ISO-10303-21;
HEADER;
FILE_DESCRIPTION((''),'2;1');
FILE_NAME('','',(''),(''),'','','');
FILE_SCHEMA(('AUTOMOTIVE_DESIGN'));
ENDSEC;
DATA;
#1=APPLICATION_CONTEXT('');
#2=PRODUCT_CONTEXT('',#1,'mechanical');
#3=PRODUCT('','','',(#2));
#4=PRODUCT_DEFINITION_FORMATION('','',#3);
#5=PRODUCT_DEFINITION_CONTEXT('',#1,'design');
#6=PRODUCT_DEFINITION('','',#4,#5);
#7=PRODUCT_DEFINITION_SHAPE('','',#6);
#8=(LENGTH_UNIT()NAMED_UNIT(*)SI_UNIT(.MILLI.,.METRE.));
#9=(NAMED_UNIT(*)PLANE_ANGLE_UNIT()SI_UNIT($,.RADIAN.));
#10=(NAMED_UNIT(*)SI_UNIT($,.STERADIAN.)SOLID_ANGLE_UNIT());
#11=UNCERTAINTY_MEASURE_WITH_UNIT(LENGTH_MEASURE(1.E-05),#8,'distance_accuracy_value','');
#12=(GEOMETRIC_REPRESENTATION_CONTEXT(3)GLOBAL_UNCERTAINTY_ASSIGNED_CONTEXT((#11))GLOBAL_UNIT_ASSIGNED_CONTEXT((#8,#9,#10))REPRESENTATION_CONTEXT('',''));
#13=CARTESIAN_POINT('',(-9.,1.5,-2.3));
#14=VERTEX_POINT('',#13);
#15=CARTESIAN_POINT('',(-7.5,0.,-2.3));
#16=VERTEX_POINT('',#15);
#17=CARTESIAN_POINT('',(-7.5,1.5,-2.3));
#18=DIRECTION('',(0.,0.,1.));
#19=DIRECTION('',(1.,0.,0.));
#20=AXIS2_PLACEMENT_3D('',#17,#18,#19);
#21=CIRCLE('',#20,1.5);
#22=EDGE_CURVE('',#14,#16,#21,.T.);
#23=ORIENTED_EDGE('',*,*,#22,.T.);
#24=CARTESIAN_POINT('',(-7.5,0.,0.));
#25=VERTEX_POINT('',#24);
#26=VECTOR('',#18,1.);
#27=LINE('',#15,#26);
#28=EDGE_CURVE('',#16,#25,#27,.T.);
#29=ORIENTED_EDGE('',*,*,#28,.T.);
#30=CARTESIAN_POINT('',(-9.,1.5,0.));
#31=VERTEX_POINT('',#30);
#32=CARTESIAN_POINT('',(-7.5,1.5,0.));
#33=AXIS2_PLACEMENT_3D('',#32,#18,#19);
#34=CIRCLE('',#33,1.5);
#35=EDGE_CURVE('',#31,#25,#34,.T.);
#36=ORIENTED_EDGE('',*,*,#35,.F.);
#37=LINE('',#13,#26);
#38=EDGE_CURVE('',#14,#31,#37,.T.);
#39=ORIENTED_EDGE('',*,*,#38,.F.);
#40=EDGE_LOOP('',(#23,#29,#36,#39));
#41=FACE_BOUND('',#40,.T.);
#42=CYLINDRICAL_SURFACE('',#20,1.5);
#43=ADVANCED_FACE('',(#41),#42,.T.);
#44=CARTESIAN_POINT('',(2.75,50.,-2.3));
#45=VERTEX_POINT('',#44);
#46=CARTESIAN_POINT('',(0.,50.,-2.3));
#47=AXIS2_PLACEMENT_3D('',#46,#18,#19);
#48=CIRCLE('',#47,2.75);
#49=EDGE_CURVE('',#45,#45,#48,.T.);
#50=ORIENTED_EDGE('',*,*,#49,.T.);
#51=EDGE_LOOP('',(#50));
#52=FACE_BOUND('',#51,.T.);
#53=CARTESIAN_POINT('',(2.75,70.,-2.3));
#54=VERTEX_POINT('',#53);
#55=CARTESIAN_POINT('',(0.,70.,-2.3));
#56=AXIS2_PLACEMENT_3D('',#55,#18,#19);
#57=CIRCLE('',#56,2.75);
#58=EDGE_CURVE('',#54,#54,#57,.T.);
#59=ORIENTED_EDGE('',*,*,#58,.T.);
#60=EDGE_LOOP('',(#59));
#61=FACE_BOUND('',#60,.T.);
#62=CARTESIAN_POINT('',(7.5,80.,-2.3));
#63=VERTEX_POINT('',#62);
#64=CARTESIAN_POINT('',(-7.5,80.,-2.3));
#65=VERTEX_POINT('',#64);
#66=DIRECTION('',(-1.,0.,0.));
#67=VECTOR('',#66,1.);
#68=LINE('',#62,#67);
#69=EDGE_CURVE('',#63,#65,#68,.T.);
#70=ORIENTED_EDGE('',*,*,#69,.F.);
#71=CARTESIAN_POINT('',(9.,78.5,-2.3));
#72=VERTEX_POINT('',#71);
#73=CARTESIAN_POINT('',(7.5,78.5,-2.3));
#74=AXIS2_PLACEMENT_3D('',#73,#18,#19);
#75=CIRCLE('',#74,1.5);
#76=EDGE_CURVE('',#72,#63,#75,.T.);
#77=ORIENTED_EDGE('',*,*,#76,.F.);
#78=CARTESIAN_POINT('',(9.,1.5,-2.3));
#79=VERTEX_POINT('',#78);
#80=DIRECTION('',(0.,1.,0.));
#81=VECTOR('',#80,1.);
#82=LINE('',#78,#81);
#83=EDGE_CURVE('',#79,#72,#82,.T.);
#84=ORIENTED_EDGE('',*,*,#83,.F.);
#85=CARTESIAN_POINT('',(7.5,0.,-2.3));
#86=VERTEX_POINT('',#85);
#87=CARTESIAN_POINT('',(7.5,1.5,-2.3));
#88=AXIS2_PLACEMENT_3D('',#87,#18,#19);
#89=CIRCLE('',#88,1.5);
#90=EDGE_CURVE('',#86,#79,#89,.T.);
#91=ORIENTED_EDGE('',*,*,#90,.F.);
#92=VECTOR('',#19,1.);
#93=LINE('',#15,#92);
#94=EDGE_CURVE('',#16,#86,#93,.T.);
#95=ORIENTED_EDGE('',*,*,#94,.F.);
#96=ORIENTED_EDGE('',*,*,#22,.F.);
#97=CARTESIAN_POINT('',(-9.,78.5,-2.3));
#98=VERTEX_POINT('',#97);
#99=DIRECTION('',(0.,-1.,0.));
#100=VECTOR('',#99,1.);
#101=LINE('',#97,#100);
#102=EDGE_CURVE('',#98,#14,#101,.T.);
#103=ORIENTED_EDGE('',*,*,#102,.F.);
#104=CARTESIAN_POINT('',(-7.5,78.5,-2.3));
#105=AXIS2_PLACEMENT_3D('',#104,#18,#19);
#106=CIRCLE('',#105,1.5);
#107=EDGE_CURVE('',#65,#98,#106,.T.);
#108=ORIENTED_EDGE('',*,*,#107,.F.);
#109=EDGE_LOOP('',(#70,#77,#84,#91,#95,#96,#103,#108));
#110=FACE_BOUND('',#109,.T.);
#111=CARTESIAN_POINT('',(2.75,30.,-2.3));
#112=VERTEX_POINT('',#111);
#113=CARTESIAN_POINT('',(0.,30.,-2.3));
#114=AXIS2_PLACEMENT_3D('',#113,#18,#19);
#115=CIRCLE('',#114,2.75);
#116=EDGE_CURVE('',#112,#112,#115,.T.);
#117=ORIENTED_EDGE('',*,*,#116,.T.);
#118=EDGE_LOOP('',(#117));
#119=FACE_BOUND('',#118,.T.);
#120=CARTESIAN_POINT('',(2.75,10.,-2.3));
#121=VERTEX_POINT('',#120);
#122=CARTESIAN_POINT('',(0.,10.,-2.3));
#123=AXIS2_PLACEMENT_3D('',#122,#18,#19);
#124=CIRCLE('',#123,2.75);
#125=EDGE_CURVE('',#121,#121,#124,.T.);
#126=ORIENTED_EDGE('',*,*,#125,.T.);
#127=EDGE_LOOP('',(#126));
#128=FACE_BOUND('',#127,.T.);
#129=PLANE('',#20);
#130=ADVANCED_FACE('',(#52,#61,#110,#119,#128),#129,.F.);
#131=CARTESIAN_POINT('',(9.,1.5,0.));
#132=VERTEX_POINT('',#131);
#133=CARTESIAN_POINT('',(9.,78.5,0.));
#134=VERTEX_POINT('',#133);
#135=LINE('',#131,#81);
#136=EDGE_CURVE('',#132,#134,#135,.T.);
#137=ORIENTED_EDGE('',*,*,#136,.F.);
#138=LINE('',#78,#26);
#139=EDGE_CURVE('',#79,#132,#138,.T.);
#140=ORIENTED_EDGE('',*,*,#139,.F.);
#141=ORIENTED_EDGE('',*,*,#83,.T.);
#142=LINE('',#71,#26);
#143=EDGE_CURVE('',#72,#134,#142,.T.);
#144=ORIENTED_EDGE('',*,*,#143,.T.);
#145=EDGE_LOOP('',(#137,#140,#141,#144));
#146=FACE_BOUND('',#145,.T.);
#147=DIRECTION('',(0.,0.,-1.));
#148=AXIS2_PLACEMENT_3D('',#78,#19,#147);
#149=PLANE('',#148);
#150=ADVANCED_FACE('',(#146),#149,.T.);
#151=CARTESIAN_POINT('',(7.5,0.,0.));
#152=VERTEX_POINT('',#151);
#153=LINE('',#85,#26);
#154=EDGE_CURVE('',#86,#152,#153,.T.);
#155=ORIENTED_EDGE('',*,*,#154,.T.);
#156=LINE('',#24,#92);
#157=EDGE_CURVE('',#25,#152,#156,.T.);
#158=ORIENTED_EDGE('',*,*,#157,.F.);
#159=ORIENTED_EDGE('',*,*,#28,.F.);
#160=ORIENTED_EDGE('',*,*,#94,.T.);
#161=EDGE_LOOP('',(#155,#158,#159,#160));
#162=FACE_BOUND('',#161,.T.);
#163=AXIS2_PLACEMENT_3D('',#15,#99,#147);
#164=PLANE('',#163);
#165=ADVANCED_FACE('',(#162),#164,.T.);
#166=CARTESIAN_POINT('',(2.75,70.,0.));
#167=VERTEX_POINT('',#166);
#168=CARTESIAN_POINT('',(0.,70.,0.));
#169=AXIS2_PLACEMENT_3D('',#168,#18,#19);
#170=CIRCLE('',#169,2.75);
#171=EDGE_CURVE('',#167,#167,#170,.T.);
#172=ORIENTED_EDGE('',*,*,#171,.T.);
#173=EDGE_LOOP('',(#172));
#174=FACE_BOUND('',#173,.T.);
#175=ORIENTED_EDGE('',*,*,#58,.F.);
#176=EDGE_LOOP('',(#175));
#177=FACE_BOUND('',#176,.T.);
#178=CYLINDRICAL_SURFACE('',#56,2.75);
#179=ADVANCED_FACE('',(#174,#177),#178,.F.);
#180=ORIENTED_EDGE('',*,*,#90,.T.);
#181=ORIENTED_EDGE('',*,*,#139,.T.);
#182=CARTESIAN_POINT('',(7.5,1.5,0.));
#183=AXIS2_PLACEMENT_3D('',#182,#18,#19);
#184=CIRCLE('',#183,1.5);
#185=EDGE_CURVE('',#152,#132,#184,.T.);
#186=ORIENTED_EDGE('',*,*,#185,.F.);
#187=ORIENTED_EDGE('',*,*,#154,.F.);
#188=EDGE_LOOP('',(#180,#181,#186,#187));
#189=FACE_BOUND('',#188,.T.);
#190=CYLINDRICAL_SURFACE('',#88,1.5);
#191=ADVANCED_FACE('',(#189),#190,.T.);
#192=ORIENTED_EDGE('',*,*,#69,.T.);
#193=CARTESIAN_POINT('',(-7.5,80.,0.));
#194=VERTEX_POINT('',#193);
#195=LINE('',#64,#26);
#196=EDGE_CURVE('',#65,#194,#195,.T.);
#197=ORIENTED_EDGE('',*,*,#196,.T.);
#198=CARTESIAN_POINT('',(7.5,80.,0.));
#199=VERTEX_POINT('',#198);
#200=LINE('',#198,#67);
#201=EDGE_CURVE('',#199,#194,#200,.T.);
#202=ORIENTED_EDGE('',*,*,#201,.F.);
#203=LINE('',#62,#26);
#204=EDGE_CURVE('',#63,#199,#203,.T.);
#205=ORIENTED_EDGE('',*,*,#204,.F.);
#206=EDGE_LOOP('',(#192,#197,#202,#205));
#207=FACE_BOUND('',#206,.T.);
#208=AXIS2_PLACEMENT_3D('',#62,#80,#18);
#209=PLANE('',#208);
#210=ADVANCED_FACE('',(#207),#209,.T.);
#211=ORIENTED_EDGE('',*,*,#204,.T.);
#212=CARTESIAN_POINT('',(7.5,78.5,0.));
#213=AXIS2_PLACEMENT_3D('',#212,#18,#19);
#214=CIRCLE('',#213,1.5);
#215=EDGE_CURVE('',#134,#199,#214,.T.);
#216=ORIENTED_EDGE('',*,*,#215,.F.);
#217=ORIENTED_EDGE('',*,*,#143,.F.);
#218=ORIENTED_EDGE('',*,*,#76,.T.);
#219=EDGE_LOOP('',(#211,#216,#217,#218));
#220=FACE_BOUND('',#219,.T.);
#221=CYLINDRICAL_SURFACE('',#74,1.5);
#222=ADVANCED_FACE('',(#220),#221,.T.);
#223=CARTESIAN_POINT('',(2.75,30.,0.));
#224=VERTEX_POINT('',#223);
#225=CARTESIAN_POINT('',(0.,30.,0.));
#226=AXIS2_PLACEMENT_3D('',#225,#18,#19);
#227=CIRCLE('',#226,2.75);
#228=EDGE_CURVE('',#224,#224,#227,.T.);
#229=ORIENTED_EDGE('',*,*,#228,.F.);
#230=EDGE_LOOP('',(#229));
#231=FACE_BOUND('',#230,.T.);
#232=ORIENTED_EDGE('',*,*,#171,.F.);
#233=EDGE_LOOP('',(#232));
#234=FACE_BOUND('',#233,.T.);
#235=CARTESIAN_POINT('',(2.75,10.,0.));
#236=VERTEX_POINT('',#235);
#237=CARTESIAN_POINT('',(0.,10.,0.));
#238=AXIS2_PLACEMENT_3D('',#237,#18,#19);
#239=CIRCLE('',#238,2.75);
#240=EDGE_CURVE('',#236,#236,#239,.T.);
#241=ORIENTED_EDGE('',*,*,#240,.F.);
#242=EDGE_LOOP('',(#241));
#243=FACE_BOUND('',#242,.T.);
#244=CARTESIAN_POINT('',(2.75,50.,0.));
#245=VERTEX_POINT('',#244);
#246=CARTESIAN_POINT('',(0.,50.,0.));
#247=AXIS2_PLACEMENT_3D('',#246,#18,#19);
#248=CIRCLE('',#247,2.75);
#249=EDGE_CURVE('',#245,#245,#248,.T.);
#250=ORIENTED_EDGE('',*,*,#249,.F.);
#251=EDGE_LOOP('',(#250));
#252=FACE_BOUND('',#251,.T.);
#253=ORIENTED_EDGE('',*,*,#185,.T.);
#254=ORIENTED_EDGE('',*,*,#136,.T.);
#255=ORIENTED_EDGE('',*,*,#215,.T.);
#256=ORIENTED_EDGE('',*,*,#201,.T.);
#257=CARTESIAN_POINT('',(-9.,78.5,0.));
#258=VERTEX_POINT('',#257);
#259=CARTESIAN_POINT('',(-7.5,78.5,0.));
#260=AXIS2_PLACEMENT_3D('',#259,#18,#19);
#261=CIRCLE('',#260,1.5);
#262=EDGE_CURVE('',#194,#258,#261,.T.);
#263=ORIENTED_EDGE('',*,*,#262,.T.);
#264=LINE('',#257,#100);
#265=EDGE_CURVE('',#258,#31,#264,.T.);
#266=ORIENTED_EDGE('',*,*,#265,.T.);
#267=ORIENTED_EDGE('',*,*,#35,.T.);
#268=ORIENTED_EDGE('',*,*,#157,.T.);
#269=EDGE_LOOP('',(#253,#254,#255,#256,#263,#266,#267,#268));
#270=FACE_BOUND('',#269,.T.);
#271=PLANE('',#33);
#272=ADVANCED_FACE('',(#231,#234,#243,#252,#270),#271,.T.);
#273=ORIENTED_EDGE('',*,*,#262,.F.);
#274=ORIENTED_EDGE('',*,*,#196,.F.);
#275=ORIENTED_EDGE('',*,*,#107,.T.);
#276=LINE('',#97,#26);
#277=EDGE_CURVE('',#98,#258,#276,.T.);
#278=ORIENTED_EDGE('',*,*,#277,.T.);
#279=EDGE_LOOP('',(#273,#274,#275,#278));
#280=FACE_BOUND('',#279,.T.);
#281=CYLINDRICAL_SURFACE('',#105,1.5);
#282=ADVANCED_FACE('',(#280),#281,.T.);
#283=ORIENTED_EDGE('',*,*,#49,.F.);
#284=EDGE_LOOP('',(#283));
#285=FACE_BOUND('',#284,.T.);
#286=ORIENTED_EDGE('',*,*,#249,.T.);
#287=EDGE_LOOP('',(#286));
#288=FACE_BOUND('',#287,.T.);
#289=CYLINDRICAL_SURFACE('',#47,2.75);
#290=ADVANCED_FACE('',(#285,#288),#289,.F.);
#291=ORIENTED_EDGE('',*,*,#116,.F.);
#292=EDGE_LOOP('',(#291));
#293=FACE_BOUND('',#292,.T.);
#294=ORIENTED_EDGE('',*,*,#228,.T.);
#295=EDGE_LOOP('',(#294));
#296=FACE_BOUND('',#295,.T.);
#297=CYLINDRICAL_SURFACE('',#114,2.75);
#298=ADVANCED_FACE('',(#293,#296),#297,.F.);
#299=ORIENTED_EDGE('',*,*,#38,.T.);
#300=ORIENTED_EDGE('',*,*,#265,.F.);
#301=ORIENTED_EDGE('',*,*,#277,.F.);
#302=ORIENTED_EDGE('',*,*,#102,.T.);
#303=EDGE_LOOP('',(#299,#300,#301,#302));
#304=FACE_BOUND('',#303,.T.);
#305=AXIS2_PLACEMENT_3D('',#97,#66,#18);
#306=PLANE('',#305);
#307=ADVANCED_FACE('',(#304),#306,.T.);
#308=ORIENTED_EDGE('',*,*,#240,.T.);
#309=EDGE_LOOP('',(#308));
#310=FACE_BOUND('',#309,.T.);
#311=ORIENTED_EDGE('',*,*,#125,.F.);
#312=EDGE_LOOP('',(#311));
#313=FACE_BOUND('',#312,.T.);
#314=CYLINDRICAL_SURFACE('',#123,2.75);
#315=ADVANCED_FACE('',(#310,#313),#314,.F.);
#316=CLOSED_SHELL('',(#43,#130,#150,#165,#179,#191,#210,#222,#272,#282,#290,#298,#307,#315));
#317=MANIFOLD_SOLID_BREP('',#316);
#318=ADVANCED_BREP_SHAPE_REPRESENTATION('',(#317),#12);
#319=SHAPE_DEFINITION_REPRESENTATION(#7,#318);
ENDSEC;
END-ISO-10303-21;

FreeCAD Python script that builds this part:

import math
import FreeCAD as App
import Part
import Sketcher

doc = App.newDocument("Part")
body = doc.addObject("PartDesign::Body", "Body")

# Sketch on XY plane
sketch1 = body.newObject("Sketcher::SketchObject", "Sketch")
sketch1.AttachmentSupport = (doc.getObject("XY_Plane"), [""])
sketch1.MapMode = "FlatFace"
sketch1.addGeometry(Part.LineSegment(App.Vector(-7.5, 0, 0), App.Vector(7.5, 0, 0)), False)
sketch1.addGeometry(Part.ArcOfCircle(Part.Circle(App.Vector(7.5, 1.5, 0), App.Vector(0, 0, 1), 1.5), math.radians(-90), math.radians(0)), False)
sketch1.addGeometry(Part.LineSegment(App.Vector(9, 1.5, 0), App.Vector(9, 78.5, 0)), False)
sketch1.addGeometry(Part.ArcOfCircle(Part.Circle(App.Vector(7.5, 78.5, 0), App.Vector(0, 0, 1), 1.5), math.radians(0), math.radians(90)), False)
sketch1.addGeometry(Part.LineSegment(App.Vector(7.5, 80, 0), App.Vector(-7.5, 80, 0)), False)
sketch1.addGeometry(Part.ArcOfCircle(Part.Circle(App.Vector(-7.5, 78.5, 0), App.Vector(0, 0, 1), 1.5), math.radians(90), math.radians(180)), False)
sketch1.addGeometry(Part.LineSegment(App.Vector(-9, 78.5, 0), App.Vector(-9, 1.5, 0)), False)
sketch1.addGeometry(Part.ArcOfCircle(Part.Circle(App.Vector(-7.5, 1.5, 0), App.Vector(0, 0, 1), 1.5), math.radians(180), math.radians(270)), False)
sketch1.addGeometry(Part.Circle(App.Vector(0, 10, 0), App.Vector(0, 0, 1), 2.8), False)
sketch1.addGeometry(Part.Circle(App.Vector(0, 30, 0), App.Vector(0, 0, 1), 2.8), False)
sketch1.addGeometry(Part.Circle(App.Vector(0, 50, 0), App.Vector(0, 0, 1), 2.8), False)
sketch1.addGeometry(Part.Circle(App.Vector(0, 70, 0), App.Vector(0, 0, 1), 2.8), False)
sketch1.addConstraint(Sketcher.Constraint("Tangent", 0, 2, 1, 1))
sketch1.addConstraint(Sketcher.Constraint("Tangent", 1, 2, 2, 1))
sketch1.addConstraint(Sketcher.Constraint("Tangent", 2, 2, 3, 1))
sketch1.addConstraint(Sketcher.Constraint("Tangent", 3, 2, 4, 1))
sketch1.addConstraint(Sketcher.Constraint("Tangent", 4, 2, 5, 1))
sketch1.addConstraint(Sketcher.Constraint("Tangent", 5, 2, 6, 1))
sketch1.addConstraint(Sketcher.Constraint("Tangent", 6, 2, 7, 1))
sketch1.addConstraint(Sketcher.Constraint("Tangent", 7, 2, 0, 1))
sketch1.addConstraint(Sketcher.Constraint("Horizontal", 0))
sketch1.addConstraint(Sketcher.Constraint("Vertical", 2))
sketch1.addConstraint(Sketcher.Constraint("Horizontal", 4))
sketch1.addConstraint(Sketcher.Constraint("Vertical", 6))
sketch1.addConstraint(Sketcher.Constraint("Equal", 1, 3))
sketch1.addConstraint(Sketcher.Constraint("Equal", 3, 5))
sketch1.addConstraint(Sketcher.Constraint("Equal", 5, 7))
sketch1.addConstraint(Sketcher.Constraint("Equal", 8, 9))
sketch1.addConstraint(Sketcher.Constraint("Equal", 9, 10))
sketch1.addConstraint(Sketcher.Constraint("Equal", 10, 11))
sketch1.addConstraint(Sketcher.Constraint("Symmetric", 0, 2, 7, 2, -1, 1))
sketch1.addConstraint(Sketcher.Constraint("PointOnObject", 8, 3, -2))
sketch1.addConstraint(Sketcher.Constraint("PointOnObject", 9, 3, -2))
sketch1.addConstraint(Sketcher.Constraint("PointOnObject", 10, 3, -2))
sketch1.addConstraint(Sketcher.Constraint("PointOnObject", 11, 3, -2))
sketch1.addConstraint(Sketcher.Constraint("Diameter", 8, 5.5))
sketch1.addConstraint(Sketcher.Constraint("Radius", 1, 1.5))
sketch1.addConstraint(Sketcher.Constraint("DistanceX", 0, 1, 0, 2, 15.0))
sketch1.addConstraint(Sketcher.Constraint("DistanceY", 2, 1, 2, 2, 77.0))
sketch1.addConstraint(Sketcher.Constraint("DistanceY", -1, 1, 8, 3, 10.0))
sketch1.addConstraint(Sketcher.Constraint("DistanceY", -1, 1, 9, 3, 30.0))
sketch1.addConstraint(Sketcher.Constraint("DistanceY", -1, 1, 10, 3, 50.0))
sketch1.addConstraint(Sketcher.Constraint("DistanceY", -1, 1, 11, 3, 70.0))
pad1 = body.newObject("PartDesign::Pad", "Pad")
pad1.Profile = sketch1
pad1.Length = 2.3
pad1.Reversed = True

doc.recompute()
